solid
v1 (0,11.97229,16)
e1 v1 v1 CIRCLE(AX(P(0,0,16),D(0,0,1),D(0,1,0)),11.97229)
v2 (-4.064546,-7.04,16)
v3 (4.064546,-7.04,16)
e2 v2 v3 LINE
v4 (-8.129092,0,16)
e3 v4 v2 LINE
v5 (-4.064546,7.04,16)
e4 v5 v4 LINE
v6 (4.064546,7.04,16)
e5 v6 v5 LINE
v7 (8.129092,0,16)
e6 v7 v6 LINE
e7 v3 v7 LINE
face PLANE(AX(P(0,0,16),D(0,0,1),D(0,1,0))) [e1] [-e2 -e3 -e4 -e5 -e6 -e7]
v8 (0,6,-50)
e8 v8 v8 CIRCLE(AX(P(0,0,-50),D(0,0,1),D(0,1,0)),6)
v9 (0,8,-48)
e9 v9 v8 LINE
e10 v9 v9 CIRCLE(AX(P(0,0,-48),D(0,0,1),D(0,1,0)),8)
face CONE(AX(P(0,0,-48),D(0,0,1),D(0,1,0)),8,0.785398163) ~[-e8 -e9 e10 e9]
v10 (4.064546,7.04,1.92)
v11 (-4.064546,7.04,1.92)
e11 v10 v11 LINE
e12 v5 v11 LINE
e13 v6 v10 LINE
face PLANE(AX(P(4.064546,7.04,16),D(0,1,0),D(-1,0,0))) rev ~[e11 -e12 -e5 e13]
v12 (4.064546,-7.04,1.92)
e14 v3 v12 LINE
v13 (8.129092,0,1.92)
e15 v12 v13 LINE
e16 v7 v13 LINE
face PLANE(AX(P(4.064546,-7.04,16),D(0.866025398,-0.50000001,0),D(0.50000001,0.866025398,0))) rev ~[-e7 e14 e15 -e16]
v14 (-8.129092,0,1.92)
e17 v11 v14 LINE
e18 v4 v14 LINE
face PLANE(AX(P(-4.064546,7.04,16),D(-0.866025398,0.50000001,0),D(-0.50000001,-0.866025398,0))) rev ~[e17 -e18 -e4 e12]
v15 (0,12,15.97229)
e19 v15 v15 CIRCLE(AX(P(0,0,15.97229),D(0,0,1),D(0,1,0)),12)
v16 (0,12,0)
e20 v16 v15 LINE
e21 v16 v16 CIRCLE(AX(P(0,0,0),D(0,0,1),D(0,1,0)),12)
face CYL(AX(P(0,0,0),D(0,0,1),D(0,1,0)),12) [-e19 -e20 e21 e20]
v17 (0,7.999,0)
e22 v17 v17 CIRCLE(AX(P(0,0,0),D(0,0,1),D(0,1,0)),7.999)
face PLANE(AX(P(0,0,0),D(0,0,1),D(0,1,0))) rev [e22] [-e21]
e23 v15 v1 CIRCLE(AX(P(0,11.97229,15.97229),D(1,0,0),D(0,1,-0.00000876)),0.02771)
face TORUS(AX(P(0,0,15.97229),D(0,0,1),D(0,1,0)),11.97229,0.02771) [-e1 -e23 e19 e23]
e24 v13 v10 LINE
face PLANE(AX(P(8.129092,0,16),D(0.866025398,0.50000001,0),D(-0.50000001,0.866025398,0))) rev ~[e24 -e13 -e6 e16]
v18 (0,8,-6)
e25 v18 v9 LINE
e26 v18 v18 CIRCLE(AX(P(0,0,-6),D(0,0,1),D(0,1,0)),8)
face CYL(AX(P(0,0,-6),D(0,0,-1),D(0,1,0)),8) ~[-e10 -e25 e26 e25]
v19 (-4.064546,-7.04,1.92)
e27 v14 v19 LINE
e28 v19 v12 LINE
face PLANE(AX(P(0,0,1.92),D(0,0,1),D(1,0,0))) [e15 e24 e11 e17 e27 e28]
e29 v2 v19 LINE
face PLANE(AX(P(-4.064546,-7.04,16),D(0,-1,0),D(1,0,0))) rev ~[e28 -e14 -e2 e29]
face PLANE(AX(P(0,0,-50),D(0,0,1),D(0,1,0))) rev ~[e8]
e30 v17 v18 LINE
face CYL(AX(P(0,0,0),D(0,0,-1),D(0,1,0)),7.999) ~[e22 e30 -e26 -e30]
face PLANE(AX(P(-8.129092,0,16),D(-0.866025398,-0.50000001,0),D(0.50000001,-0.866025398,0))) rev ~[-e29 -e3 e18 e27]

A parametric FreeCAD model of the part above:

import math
import FreeCAD as App
import Part
import Sketcher
Q = App.Units.Quantity

doc = App.newDocument("Part")
params = doc.addObject("Spreadsheet::Sheet", "Params")
for row, (alias, value) in enumerate([
    ("sketch1_width", "6 mm"),
    ("sketch1_height", "66 mm"),
    ("sketch1_height2", "42 mm"),
    ("sketch1_length", "6 mm"),
    ("revolution_angle", "360 deg"),
    ("pocket1_length", "14.08 mm"),
], start=1):
    params.set(f"A{row}", alias)
    params.set(f"B{row}", "=" + value)
    params.setAlias(f"B{row}", alias)

body = doc.addObject("PartDesign::Body", "Body")

# Sketch on YZ plane
sketch1 = body.newObject("Sketcher::SketchObject", "Sketch")
sketch1.AttachmentSupport = (doc.getObject("YZ_Plane"), [""])
sketch1.MapMode = "FlatFace"
sketch1.addGeometry([
    Part.LineSegment(App.Vector(7.999, 0, 0), App.Vector(12, 0, 0)),  # 0
    Part.LineSegment(App.Vector(12, 0, 0), App.Vector(12, 15.972, 0)),  # 1
    Part.ArcOfCircle(Part.Circle(App.Vector(11.972, 15.972, 0), App.Vector(0, 0, 1), 0.028), math.radians(0), math.radians(90)),  # 2
    Part.LineSegment(App.Vector(11.972, 16, 0), App.Vector(0, 16, 0)),  # 3
    Part.LineSegment(App.Vector(0, 16, 0), App.Vector(0, -50, 0)),  # 4
    Part.LineSegment(App.Vector(0, -50, 0), App.Vector(6, -50, 0)),  # 5
    Part.LineSegment(App.Vector(6, -50, 0), App.Vector(8, -48, 0)),  # 6
    Part.LineSegment(App.Vector(8, -48, 0), App.Vector(8, -6, 0)),  # 7
    Part.LineSegment(App.Vector(8, -6, 0), App.Vector(7.999, 0, 0)),  # 8
], False)
sketch1.addConstraint([
    Sketcher.Constraint("Coincident", 0, 2, 1, 1),
    Sketcher.Constraint("Coincident", 1, 2, 2, 1),
    Sketcher.Constraint("Coincident", 2, 2, 3, 1),
    Sketcher.Constraint("Coincident", 3, 2, 4, 1),
    Sketcher.Constraint("Coincident", 4, 2, 5, 1),
    Sketcher.Constraint("Coincident", 5, 2, 6, 1),
    Sketcher.Constraint("Coincident", 6, 2, 7, 1),
    Sketcher.Constraint("Coincident", 7, 2, 8, 1),
    Sketcher.Constraint("Coincident", 8, 2, 0, 1),
    Sketcher.Constraint("Horizontal", 0),
    Sketcher.Constraint("Vertical", 1),
    Sketcher.Constraint("Horizontal", 3),
    Sketcher.Constraint("Vertical", 4),
    Sketcher.Constraint("Horizontal", 5),
    Sketcher.Constraint("Vertical", 7),
    Sketcher.Constraint("PointOnObject", 0, 2, -1),
    Sketcher.Constraint("PointOnObject", 3, 2, -2),
    Sketcher.Constraint("Horizontal", 2, 3, 1, 2),
    Sketcher.Constraint("DistanceX", 5, 1, 5, 2, 6.0),
    Sketcher.Constraint("DistanceY", 4, 2, 4, 1, 66.0),
    Sketcher.Constraint("DistanceY", 7, 1, 7, 2, 42.0),
    Sketcher.Constraint("Angle", 6, Q("45 deg")),
    Sketcher.Constraint("Distance", 8, 6.0),
    Sketcher.Constraint("DistanceX", -1, 1, 0, 2, 12.0),
    Sketcher.Constraint("DistanceY", -1, 1, 2, 2, 16.0),
    Sketcher.Constraint("DistanceX", 0, 1, 0, 2, 4.001),
    Sketcher.Constraint("Radius", 2, 0.02771),
    Sketcher.Constraint("DistanceX", 3, 2, 3, 1, 11.97229),
])
sketch1.setExpression("Constraints[18]", "Params.sketch1_width")
sketch1.setExpression("Constraints[19]", "Params.sketch1_height")
sketch1.setExpression("Constraints[20]", "Params.sketch1_height2")
sketch1.setExpression("Constraints[22]", "Params.sketch1_length")
revolution = body.newObject("PartDesign::Revolution", "Revolution")
revolution.Profile = sketch1
revolution.ReferenceAxis = (sketch1, ["V_Axis"])
revolution.setExpression("Angle", "Params.revolution_angle")

# Sketch on XY plane
sketch2 = body.newObject("Sketcher::SketchObject", "Sketch001")
sketch2.AttachmentSupport = (doc.getObject("XY_Plane"), [""])
sketch2.MapMode = "FlatFace"
sketch2.AttachmentOffset = App.Placement(App.Vector(0, 0, 16), App.Rotation())
sketch2.addGeometry([
    Part.LineSegment(App.Vector(8, 0, 0), App.Vector(4, 7, 0)),  # 0
    Part.LineSegment(App.Vector(4, 7, 0), App.Vector(-4, 7, 0)),  # 1
    Part.LineSegment(App.Vector(-4, 7, 0), App.Vector(-8, 0, 0)),  # 2
    Part.LineSegment(App.Vector(-8, 0, 0), App.Vector(-4, -7, 0)),  # 3
    Part.LineSegment(App.Vector(-4, -7, 0), App.Vector(4, -7, 0)),  # 4
    Part.LineSegment(App.Vector(4, -7, 0), App.Vector(8, 0, 0)),  # 5
], False)
sketch2.addConstraint([
    Sketcher.Constraint("Coincident", 0, 2, 1, 1),
    Sketcher.Constraint("Coincident", 1, 2, 2, 1),
    Sketcher.Constraint("Coincident", 2, 2, 3, 1),
    Sketcher.Constraint("Coincident", 3, 2, 4, 1),
    Sketcher.Constraint("Coincident", 4, 2, 5, 1),
    Sketcher.Constraint("Coincident", 5, 2, 0, 1),
    Sketcher.Constraint("Horizontal", 1),
    Sketcher.Constraint("Horizontal", 4),
    Sketcher.Constraint("Symmetric", 0, 2, 3, 2, -1, 1),
    Sketcher.Constraint("Symmetric", 2, 2, 5, 2, -1, 1),
    Sketcher.Constraint("PointOnObject", 2, 2, -1),
    Sketcher.Constraint("Parallel", 2, 5),
    Sketcher.Constraint("Vertical", 1, 2, 3, 2),
    Sketcher.Constraint("Angle", 0, Q("120.000001 deg")),
    Sketcher.Constraint("DistanceY", -1, 1, 0, 2, 7.04),
    Sketcher.Constraint("DistanceX", 1, 2, 1, 1, 8.129092),
])
pocket1 = body.newObject("PartDesign::Pocket", "Pocket")
pocket1.Profile = sketch2
pocket1.setExpression("Length", "Params.pocket1_length")

doc.recompute()
